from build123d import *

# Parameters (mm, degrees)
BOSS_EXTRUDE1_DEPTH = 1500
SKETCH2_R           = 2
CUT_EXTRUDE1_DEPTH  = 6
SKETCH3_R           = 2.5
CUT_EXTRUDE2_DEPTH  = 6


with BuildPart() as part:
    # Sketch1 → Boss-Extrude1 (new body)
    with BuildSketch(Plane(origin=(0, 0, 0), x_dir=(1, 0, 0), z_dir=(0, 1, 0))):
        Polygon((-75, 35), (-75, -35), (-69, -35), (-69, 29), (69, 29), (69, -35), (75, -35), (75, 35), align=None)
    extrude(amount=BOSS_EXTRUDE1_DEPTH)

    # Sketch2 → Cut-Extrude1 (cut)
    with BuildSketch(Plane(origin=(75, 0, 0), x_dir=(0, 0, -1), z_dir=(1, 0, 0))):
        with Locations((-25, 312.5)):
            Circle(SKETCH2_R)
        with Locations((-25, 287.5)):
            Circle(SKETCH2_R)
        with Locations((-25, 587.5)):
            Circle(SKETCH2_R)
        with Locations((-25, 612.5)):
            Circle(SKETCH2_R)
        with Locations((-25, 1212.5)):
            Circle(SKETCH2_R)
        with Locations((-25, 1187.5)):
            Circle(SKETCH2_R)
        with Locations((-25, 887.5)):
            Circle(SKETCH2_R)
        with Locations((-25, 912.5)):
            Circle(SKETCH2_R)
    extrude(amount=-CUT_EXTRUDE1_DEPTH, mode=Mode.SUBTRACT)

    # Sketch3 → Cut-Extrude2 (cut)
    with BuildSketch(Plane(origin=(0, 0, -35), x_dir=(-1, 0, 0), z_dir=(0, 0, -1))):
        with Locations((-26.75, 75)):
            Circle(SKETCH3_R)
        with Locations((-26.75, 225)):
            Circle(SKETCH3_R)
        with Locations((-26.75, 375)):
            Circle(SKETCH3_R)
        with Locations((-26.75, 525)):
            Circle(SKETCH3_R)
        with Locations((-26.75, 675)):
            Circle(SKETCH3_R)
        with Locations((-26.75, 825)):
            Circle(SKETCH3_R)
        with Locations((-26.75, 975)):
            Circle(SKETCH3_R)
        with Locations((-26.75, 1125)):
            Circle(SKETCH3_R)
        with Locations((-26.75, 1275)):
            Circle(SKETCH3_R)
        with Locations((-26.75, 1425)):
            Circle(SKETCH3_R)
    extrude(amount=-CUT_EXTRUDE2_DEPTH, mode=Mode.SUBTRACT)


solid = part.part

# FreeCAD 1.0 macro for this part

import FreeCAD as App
import Part
import Sketcher
from FreeCAD import Vector
Q = App.Units.Quantity


def add_polygon(sketch, points):
    """Adds a closed chain of lines whose ends are joined by coincident constraints."""
    first, n = sketch.GeometryCount, len(points)
    for a, b in zip(points, points[1:] + points[:1]):
        sketch.addGeometry(Part.LineSegment(App.Vector(*a, 0), App.Vector(*b, 0)), False)
    for i in range(n):
        sketch.addConstraint(Sketcher.Constraint("Coincident", first + i, 2, first + (i + 1) % n, 1))

doc = App.newDocument("Part")
body = doc.addObject("PartDesign::Body", "Body")

# Sketch on XZ plane
sketch1 = body.newObject("Sketcher::SketchObject", "Sketch")
sketch1.AttachmentSupport = (doc.getObject("XZ_Plane"), [""])
sketch1.MapMode = "FlatFace"
add_polygon(sketch1, [(-75, -35), (-75, 35), (-69, 35), (-69, -29), (69, -29), (69, 35), (75, 35), (75, -35)])  # lines 0-7
sketch1.addConstraint([
    Sketcher.Constraint("Vertical", 0),
    Sketcher.Constraint("Horizontal", 1),
    Sketcher.Constraint("Vertical", 2),
    Sketcher.Constraint("Horizontal", 3),
    Sketcher.Constraint("Vertical", 4),
    Sketcher.Constraint("Horizontal", 5),
    Sketcher.Constraint("Vertical", 6),
    Sketcher.Constraint("Horizontal", 7),
    Sketcher.Constraint("Symmetric", 0, 2, 6, 2, -1, 1),
    Sketcher.Constraint("Symmetric", 1, 2, 4, 2, -2),
    Sketcher.Constraint("DistanceX", 1, 1, 1, 2, Q("6 mm")),
    Sketcher.Constraint("DistanceX", 3, 1, 3, 2, Q("138 mm")),
    Sketcher.Constraint("DistanceY", 0, 1, 0, 2, Q("70 mm")),
    Sketcher.Constraint("DistanceY", 2, 2, 2, 1, Q("64 mm")),
])
pad1 = body.newObject("PartDesign::Pad", "Pad")
pad1.Profile = sketch1
pad1.Length = 1500
pad1.Reversed = True

# Sketch on YZ plane
sketch2 = body.newObject("Sketcher::SketchObject", "Sketch001")
sketch2.AttachmentSupport = (doc.getObject("YZ_Plane"), [""])
sketch2.MapMode = "FlatFace"
sketch2.AttachmentOffset = App.Placement(Vector(0, 0, 75), App.Rotation())
sketch2.addGeometry([
    Part.Circle(Vector(312.5, 25, 0), Vector(0, 0, 1), 2),  # 0
    Part.Circle(Vector(287.5, 25, 0), Vector(0, 0, 1), 2),  # 1
    Part.Circle(Vector(587.5, 25, 0), Vector(0, 0, 1), 2),  # 2
    Part.Circle(Vector(612.5, 25, 0), Vector(0, 0, 1), 2),  # 3
    Part.Circle(Vector(1212.5, 25, 0), Vector(0, 0, 1), 2),  # 4
    Part.Circle(Vector(1187.5, 25, 0), Vector(0, 0, 1), 2),  # 5
    Part.Circle(Vector(887.5, 25, 0), Vector(0, 0, 1), 2),  # 6
    Part.Circle(Vector(912.5, 25, 0), Vector(0, 0, 1), 2),  # 7
], False)
sketch2.addConstraint([
    Sketcher.Constraint("Equal", 0, 1),
    Sketcher.Constraint("Equal", 1, 2),
    Sketcher.Constraint("Equal", 2, 3),
    Sketcher.Constraint("Equal", 3, 4),
    Sketcher.Constraint("Equal", 4, 5),
    Sketcher.Constraint("Equal", 5, 6),
    Sketcher.Constraint("Equal", 6, 7),
    Sketcher.Constraint("Horizontal", 0, 3, 1, 3),
    Sketcher.Constraint("Horizontal", 1, 3, 2, 3),
    Sketcher.Constraint("Horizontal", 2, 3, 3, 3),
    Sketcher.Constraint("Horizontal", 3, 3, 4, 3),
    Sketcher.Constraint("Horizontal", 4, 3, 5, 3),
    Sketcher.Constraint("Horizontal", 5, 3, 6, 3),
    Sketcher.Constraint("Horizontal", 6, 3, 7, 3),
    Sketcher.Constraint("Diameter", 0, Q("4 mm")),
    Sketcher.Constraint("DistanceY", -1, 1, 0, 3, Q("25 mm")),
    Sketcher.Constraint("DistanceX", 1, 3, 0, 3, Q("25 mm")),
    Sketcher.Constraint("DistanceX", 0, 3, 2, 3, Q("275 mm")),
    Sketcher.Constraint("DistanceX", 2, 3, 3, 3, Q("25 mm")),
    Sketcher.Constraint("DistanceX", 3, 3, 4, 3, Q("600 mm")),
    Sketcher.Constraint("DistanceX", 5, 3, 4, 3, Q("25 mm")),
    Sketcher.Constraint("DistanceX", 3, 3, 6, 3, Q("275 mm")),
    Sketcher.Constraint("DistanceX", 6, 3, 7, 3, Q("25 mm")),
    Sketcher.Constraint("DistanceX", -1, 1, 0, 3, Q("312.5 mm")),
])
pocket1 = body.newObject("PartDesign::Pocket", "Pocket")
pocket1.Profile = sketch2
pocket1.Length = 6

# Sketch on XY plane
sketch3 = body.newObject("Sketcher::SketchObject", "Sketch002")
sketch3.AttachmentSupport = (doc.getObject("XY_Plane"), [""])
sketch3.MapMode = "FlatFace"
sketch3.AttachmentOffset = App.Placement(Vector(0, 0, -35), App.Rotation())
sketch3.addGeometry([
    Part.Circle(Vector(26.8, 75, 0), Vector(0, 0, 1), 2.5),  # 0
    Part.Circle(Vector(26.8, 225, 0), Vector(0, 0, 1), 2.5),  # 1
    Part.Circle(Vector(26.8, 375, 0), Vector(0, 0, 1), 2.5),  # 2
    Part.Circle(Vector(26.8, 525, 0), Vector(0, 0, 1), 2.5),  # 3
    Part.Circle(Vector(26.8, 675, 0), Vector(0, 0, 1), 2.5),  # 4
    Part.Circle(Vector(26.8, 825, 0), Vector(0, 0, 1), 2.5),  # 5
    Part.Circle(Vector(26.8, 975, 0), Vector(0, 0, 1), 2.5),  # 6
    Part.Circle(Vector(26.8, 1125, 0), Vector(0, 0, 1), 2.5),  # 7
    Part.Circle(Vector(26.8, 1275, 0), Vector(0, 0, 1), 2.5),  # 8
    Part.Circle(Vector(26.8, 1425, 0), Vector(0, 0, 1), 2.5),  # 9
], False)
sketch3.addConstraint([
    Sketcher.Constraint("Equal", 0, 1),
    Sketcher.Constraint("Equal", 1, 2),
    Sketcher.Constraint("Equal", 2, 3),
    Sketcher.Constraint("Equal", 3, 4),
    Sketcher.Constraint("Equal", 4, 5),
    Sketcher.Constraint("Equal", 5, 6),
    Sketcher.Constraint("Equal", 6, 7),
    Sketcher.Constraint("Equal", 7, 8),
    Sketcher.Constraint("Equal", 8, 9),
    Sketcher.Constraint("Vertical", 0, 3, 1, 3),
    Sketcher.Constraint("Vertical", 1, 3, 2, 3),
    Sketcher.Constraint("Vertical", 2, 3, 3, 3),
    Sketcher.Constraint("Vertical", 3, 3, 4, 3),
    Sketcher.Constraint("Vertical", 4, 3, 5, 3),
    Sketcher.Constraint("Vertical", 5, 3, 6, 3),
    Sketcher.Constraint("Vertical", 6, 3, 7, 3),
    Sketcher.Constraint("Vertical", 7, 3, 8, 3),
    Sketcher.Constraint("Vertical", 8, 3, 9, 3),
    Sketcher.Constraint("Diameter", 0, Q("5 mm")),
    Sketcher.Constraint("DistanceY", -1, 1, 0, 3, Q("75 mm")),
    Sketcher.Constraint("DistanceY", -1, 1, 1, 3, Q("225 mm")),
    Sketcher.Constraint("DistanceY", -1, 1, 2, 3, Q("375 mm")),
    Sketcher.Constraint("DistanceY", -1, 1, 3, 3, Q("525 mm")),
    Sketcher.Constraint("DistanceY", -1, 1, 4, 3, Q("675 mm")),
    Sketcher.Constraint("DistanceY", -1, 1, 5, 3, Q("825 mm")),
    Sketcher.Constraint("DistanceY", -1, 1, 6, 3, Q("975 mm")),
    Sketcher.Constraint("DistanceY", -1, 1, 7, 3, Q("1125 mm")),
    Sketcher.Constraint("DistanceY", -1, 1, 8, 3, Q("1275 mm")),
    Sketcher.Constraint("DistanceY", -1, 1, 9, 3, Q("1425 mm")),
    Sketcher.Constraint("DistanceX", -1, 1, 0, 3, Q("26.75 mm")),
])
pocket2 = body.newObject("PartDesign::Pocket", "Pocket001")
pocket2.Profile = sketch3
pocket2.Length = 6
pocket2.Reversed = True

doc.recompute()
